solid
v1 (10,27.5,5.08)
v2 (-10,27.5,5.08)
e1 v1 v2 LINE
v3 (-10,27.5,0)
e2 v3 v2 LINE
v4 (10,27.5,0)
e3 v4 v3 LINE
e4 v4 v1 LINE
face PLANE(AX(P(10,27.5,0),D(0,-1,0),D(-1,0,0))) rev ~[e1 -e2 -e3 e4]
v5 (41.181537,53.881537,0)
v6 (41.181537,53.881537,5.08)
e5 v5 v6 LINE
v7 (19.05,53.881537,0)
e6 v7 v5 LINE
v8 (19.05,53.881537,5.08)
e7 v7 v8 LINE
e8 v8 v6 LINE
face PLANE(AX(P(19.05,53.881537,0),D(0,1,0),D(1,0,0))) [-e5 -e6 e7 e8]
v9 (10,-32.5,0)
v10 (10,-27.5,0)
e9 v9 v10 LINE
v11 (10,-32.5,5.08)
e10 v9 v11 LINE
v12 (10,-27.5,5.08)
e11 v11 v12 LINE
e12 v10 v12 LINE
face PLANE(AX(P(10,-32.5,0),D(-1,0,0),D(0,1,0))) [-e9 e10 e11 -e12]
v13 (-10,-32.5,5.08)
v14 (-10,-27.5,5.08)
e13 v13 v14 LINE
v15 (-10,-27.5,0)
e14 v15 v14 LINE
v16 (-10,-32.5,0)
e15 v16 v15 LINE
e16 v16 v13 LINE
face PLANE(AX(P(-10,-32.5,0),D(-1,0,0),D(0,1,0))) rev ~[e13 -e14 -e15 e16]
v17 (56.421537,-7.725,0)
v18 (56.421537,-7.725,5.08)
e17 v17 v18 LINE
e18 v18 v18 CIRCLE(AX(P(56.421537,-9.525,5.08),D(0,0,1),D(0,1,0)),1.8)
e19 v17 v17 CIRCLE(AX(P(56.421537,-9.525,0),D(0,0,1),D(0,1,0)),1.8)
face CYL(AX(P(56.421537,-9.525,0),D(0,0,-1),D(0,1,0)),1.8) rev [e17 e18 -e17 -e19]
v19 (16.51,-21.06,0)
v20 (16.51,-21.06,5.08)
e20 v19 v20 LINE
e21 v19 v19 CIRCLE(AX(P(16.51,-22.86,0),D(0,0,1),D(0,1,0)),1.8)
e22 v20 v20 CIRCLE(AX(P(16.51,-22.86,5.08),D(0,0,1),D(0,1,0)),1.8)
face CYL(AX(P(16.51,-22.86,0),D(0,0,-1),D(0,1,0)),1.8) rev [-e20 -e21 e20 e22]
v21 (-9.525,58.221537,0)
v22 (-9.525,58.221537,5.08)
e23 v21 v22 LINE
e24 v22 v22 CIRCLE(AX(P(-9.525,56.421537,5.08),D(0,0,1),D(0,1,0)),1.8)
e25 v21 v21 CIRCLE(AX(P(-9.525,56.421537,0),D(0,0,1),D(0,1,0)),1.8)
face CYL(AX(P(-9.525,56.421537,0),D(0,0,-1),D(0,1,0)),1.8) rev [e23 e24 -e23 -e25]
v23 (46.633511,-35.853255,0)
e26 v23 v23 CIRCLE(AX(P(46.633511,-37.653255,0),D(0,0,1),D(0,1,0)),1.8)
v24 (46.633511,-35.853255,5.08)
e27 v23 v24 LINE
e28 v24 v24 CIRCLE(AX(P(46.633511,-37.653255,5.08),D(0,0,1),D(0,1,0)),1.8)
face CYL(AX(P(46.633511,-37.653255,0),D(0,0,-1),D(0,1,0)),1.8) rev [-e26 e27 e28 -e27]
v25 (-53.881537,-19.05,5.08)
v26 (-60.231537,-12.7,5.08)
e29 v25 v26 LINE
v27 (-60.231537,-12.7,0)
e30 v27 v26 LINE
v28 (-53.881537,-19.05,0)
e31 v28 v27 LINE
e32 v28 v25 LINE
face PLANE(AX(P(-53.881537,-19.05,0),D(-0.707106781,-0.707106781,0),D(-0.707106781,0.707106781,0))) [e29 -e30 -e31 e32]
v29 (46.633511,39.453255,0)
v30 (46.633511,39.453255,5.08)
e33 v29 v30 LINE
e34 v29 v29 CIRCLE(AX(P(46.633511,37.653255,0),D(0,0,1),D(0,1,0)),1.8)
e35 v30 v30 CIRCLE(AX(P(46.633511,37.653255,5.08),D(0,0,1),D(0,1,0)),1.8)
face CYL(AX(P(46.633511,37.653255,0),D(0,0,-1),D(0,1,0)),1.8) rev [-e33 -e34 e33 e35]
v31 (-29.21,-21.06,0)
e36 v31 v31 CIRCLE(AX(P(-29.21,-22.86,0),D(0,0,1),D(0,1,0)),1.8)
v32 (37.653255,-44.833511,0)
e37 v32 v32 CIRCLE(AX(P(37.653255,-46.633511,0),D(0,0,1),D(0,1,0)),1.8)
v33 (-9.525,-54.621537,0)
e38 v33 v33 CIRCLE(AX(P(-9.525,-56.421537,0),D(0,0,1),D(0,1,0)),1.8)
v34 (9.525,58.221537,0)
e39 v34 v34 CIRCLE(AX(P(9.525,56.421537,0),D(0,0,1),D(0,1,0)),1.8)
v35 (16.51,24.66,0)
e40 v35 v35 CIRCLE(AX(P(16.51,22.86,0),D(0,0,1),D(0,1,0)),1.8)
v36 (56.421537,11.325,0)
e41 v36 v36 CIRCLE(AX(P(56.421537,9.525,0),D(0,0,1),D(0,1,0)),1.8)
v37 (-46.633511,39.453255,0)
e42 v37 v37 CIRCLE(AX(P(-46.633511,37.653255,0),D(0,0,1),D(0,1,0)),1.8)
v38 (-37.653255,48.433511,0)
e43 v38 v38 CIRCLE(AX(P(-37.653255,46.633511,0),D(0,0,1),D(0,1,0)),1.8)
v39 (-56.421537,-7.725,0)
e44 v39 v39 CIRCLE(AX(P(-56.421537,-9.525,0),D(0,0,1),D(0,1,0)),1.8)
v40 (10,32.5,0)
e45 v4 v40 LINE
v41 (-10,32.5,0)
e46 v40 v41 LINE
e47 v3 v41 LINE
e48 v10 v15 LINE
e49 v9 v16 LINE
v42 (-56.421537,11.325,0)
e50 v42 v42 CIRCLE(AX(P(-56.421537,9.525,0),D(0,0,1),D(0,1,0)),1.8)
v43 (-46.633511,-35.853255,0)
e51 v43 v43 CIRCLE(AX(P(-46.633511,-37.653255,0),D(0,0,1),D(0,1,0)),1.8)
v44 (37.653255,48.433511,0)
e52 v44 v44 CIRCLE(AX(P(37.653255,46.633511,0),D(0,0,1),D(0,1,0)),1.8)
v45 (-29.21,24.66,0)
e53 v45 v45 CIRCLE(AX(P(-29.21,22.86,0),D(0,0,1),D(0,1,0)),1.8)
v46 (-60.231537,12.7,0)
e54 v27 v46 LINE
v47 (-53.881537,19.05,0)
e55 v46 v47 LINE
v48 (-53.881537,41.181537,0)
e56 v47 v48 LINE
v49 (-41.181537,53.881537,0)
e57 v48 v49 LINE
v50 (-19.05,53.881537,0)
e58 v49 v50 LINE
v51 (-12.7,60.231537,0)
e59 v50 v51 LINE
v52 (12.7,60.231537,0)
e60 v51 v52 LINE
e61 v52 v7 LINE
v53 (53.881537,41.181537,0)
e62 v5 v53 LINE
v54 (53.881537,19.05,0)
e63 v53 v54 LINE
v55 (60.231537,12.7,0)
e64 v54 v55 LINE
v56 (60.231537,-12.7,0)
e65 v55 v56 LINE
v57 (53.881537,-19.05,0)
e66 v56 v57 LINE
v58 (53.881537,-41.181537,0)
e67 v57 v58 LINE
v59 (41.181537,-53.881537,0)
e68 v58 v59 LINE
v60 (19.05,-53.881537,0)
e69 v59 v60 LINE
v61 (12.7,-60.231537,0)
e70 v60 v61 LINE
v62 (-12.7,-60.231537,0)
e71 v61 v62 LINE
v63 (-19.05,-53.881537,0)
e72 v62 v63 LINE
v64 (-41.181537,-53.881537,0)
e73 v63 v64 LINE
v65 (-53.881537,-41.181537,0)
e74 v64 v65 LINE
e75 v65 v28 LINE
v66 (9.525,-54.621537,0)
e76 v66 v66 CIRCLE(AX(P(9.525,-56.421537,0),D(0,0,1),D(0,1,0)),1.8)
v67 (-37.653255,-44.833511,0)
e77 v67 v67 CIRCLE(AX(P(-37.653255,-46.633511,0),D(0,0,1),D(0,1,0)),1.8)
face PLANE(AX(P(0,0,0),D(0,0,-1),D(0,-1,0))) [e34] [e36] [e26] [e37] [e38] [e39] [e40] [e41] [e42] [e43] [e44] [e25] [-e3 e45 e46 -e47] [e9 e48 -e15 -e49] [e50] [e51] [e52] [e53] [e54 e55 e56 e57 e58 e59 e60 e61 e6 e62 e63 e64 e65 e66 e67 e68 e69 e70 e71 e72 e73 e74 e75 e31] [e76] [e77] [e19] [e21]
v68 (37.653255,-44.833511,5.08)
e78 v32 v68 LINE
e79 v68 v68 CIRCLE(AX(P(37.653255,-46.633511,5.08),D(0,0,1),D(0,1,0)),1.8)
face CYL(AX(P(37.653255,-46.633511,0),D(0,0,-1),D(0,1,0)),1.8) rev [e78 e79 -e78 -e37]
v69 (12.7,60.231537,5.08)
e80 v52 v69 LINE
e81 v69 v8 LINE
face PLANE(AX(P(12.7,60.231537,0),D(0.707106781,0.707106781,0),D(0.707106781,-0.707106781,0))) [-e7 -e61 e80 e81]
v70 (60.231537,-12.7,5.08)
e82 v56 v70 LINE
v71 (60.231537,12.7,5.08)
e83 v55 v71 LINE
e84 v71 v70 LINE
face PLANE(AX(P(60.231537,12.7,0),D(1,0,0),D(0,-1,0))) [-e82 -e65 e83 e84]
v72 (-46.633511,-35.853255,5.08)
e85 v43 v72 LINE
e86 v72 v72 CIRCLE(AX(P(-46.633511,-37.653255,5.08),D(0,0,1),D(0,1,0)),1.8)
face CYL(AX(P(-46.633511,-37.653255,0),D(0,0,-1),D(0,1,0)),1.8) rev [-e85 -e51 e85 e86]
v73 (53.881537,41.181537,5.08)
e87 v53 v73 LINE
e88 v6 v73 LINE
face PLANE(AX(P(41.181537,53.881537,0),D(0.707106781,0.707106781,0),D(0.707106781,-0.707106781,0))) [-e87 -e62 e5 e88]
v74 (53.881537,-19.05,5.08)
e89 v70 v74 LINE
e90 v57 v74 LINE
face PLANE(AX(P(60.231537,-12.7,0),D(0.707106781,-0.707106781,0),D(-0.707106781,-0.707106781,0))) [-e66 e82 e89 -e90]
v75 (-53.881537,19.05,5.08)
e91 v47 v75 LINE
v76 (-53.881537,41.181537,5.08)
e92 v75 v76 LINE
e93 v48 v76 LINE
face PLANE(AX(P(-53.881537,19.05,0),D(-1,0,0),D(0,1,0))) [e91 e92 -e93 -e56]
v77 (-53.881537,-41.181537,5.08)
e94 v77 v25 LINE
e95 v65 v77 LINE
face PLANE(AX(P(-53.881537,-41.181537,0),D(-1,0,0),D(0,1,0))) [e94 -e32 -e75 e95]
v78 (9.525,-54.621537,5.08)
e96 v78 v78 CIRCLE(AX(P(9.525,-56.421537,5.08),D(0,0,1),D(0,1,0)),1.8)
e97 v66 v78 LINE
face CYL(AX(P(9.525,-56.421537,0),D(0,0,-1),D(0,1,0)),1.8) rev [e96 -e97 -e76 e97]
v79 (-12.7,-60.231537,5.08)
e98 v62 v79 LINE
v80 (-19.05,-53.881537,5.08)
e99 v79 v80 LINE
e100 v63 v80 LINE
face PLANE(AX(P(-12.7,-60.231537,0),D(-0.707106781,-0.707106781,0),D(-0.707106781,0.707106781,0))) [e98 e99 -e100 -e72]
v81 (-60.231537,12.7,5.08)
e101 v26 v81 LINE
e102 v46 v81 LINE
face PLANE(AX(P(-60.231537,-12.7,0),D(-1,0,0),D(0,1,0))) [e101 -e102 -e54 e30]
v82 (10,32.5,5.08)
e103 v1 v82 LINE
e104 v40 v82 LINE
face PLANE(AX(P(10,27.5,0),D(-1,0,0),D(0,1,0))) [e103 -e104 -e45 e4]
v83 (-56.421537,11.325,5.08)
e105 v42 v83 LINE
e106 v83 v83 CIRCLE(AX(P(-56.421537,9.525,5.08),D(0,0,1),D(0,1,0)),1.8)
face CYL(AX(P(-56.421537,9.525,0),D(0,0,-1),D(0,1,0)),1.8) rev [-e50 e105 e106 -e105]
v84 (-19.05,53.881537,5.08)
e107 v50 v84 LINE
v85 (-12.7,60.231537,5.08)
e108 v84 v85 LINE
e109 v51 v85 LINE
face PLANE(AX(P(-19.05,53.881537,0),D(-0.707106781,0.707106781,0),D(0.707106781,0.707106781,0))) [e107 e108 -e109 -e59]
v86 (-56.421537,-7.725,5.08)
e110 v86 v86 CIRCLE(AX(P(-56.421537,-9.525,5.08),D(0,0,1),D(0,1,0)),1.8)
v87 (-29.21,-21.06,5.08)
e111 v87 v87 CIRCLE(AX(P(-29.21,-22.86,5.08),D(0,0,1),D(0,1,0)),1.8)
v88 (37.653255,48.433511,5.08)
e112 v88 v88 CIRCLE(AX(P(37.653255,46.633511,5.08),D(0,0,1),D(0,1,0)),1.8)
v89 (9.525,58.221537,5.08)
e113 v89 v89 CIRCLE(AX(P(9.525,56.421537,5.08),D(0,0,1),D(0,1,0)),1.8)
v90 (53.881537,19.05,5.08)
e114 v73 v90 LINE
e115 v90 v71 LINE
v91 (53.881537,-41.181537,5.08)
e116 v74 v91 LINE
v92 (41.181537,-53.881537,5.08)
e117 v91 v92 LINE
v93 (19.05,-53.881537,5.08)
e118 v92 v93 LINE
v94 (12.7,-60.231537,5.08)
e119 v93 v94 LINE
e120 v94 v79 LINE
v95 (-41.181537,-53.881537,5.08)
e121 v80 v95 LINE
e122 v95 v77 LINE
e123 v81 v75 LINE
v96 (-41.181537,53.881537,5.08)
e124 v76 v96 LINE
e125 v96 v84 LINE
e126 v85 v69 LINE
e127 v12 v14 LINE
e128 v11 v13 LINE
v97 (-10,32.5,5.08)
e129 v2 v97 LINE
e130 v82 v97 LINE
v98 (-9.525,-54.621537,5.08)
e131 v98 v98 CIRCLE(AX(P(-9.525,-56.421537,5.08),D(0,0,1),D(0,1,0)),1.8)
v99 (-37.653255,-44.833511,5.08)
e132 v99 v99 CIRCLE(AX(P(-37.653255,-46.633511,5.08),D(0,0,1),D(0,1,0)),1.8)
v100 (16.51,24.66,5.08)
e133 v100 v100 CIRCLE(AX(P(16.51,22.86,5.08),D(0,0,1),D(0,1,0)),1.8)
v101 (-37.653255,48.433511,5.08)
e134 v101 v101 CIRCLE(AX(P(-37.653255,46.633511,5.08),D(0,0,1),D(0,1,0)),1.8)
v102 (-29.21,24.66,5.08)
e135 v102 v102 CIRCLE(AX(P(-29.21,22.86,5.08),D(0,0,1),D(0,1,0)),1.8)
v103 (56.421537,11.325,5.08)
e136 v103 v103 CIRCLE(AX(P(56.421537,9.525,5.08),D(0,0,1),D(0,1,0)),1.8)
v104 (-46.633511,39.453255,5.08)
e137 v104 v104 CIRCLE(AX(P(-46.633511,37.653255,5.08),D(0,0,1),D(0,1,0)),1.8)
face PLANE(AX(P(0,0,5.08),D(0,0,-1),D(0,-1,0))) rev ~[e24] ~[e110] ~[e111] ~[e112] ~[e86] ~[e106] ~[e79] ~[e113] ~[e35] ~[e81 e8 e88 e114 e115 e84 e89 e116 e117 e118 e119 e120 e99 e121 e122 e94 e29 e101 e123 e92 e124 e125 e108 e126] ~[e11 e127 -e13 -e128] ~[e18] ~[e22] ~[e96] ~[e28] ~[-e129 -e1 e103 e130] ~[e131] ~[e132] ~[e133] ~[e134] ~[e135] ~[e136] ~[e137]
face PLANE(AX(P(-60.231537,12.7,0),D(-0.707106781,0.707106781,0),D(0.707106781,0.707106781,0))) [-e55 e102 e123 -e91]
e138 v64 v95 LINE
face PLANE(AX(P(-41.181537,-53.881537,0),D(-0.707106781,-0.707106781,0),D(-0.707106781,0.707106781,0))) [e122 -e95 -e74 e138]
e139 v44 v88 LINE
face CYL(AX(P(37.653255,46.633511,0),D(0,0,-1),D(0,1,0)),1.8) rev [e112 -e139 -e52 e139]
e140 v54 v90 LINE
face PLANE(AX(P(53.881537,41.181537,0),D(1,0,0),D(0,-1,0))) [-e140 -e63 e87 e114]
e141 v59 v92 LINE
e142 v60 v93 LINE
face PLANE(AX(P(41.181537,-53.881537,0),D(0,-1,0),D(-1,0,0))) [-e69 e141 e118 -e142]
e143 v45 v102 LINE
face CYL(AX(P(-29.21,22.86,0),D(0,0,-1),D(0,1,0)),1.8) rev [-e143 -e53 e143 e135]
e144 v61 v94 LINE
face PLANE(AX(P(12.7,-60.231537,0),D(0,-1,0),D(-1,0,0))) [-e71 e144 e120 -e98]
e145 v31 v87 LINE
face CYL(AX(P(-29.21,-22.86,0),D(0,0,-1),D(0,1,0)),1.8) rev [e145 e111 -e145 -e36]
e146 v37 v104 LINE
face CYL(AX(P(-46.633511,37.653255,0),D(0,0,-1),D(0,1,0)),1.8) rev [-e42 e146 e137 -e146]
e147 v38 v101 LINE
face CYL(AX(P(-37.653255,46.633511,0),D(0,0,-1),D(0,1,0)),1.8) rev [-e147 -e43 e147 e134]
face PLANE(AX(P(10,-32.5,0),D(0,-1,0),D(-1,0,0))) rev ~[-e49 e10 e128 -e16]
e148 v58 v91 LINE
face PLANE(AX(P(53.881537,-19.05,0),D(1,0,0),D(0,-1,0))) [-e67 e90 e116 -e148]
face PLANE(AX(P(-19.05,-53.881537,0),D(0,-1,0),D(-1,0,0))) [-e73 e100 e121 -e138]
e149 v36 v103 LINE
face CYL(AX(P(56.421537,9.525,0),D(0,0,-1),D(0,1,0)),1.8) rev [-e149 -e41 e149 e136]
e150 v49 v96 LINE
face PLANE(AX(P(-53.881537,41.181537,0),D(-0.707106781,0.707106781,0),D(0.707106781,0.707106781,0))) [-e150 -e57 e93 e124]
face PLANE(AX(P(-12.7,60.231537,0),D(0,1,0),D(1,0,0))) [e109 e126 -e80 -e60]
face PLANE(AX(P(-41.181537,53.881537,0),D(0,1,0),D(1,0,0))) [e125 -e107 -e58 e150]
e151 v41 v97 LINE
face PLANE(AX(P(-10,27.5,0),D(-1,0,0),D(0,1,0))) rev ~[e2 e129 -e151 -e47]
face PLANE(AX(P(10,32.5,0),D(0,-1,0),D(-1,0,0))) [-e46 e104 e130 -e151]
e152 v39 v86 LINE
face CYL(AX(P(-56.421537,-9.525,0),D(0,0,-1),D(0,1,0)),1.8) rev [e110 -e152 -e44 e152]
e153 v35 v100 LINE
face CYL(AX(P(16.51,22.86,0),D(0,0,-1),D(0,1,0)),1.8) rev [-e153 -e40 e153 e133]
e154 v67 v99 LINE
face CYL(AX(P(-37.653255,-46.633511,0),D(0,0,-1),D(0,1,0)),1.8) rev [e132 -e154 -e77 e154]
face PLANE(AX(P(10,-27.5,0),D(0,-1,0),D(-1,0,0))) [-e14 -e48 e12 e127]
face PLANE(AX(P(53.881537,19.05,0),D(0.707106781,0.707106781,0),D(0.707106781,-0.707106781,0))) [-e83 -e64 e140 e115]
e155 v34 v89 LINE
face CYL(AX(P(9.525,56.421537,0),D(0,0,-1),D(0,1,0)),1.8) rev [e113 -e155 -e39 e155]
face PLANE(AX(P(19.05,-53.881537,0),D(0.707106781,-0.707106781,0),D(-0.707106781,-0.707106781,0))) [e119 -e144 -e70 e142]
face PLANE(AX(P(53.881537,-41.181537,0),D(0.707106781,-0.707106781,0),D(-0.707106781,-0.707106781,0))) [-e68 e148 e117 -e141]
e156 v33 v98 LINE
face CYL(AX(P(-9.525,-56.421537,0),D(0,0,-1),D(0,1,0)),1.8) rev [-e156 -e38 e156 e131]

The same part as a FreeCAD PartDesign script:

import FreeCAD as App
import Part
import Sketcher
from FreeCAD import Vector


def add_polygon(sketch, points):
    """Adds a closed chain of lines whose ends are joined by coincident constraints."""
    first, n = sketch.GeometryCount, len(points)
    for a, b in zip(points, points[1:] + points[:1]):
        sketch.addGeometry(Part.LineSegment(App.Vector(*a, 0), App.Vector(*b, 0)), False)
    for i in range(n):
        sketch.addConstraint(Sketcher.Constraint("Coincident", first + i, 2, first + (i + 1) % n, 1))

doc = App.newDocument("Part")
params = doc.addObject("Spreadsheet::Sheet", "Params")
for row, (alias, value) in enumerate([
    ("sketch1_diameter", "3.6 mm"),
    ("sketch1_width", "20 mm"),
    ("sketch1_height", "5 mm"),
    ("sketch1_width2", "25.4 mm"),
    ("pad1_length", "5.08 mm"),
], start=1):
    params.set(f"A{row}", alias)
    params.set(f"B{row}", "=" + value)
    params.setAlias(f"B{row}", alias)

body = doc.addObject("PartDesign::Body", "Body")

# Sketch on XY plane
sketch1 = body.newObject("Sketcher::SketchObject", "Sketch")
sketch1.AttachmentSupport = (doc.getObject("XY_Plane"), [""])
sketch1.MapMode = "FlatFace"
add_polygon(sketch1, [(-53.9, -19.1), (-53.9, -41.2), (-41.2, -53.9), (-19.1, -53.9), (-12.7, -60.2), (12.7, -60.2), (19.1, -53.9), (41.2, -53.9), (53.9, -41.2), (53.9, -19.1), (60.2, -12.7), (60.2, 12.7), (53.9, 19.1), (53.9, 41.2), (41.2, 53.9), (19.1, 53.9), (12.7, 60.2), (-12.7, 60.2), (-19.1, 53.9), (-41.2, 53.9), (-53.9, 41.2), (-53.9, 19.1), (-60.2, 12.7), (-60.2, -12.7)])  # lines 0-23
sketch1.addGeometry(Part.Circle(Vector(46.6, 37.7, 0), Vector(0, 0, 1), 1.8), False)  # 24
sketch1.addGeometry(Part.Circle(Vector(37.7, 46.6, 0), Vector(0, 0, 1), 1.8), False)  # 25
sketch1.addGeometry(Part.Circle(Vector(56.4, 9.5, 0), Vector(0, 0, 1), 1.8), False)  # 26
sketch1.addGeometry(Part.Circle(Vector(9.5, 56.4, 0), Vector(0, 0, 1), 1.8), False)  # 27
add_polygon(sketch1, [(10, 27.5), (-10, 27.5), (-10, 32.5), (10, 32.5)])  # lines 28-31
sketch1.addGeometry(Part.Circle(Vector(16.5, 22.9, 0), Vector(0, 0, 1), 1.8), False)  # 32
sketch1.addGeometry(Part.Circle(Vector(56.4, -9.5, 0), Vector(0, 0, 1), 1.8), False)  # 33
sketch1.addGeometry(Part.Circle(Vector(46.6, -37.7, 0), Vector(0, 0, 1), 1.8), False)  # 34
sketch1.addGeometry(Part.Circle(Vector(37.7, -46.6, 0), Vector(0, 0, 1), 1.8), False)  # 35
sketch1.addGeometry(Part.Circle(Vector(16.5, -22.9, 0), Vector(0, 0, 1), 1.8), False)  # 36
add_polygon(sketch1, [(10, -32.5), (-10, -32.5), (-10, -27.5), (10, -27.5)])  # lines 37-40
sketch1.addGeometry(Part.Circle(Vector(9.5, -56.4, 0), Vector(0, 0, 1), 1.8), False)  # 41
sketch1.addGeometry(Part.Circle(Vector(-9.5, 56.4, 0), Vector(0, 0, 1), 1.8), False)  # 42
sketch1.addGeometry(Part.Circle(Vector(-37.7, 46.6, 0), Vector(0, 0, 1), 1.8), False)  # 43
sketch1.addGeometry(Part.Circle(Vector(-46.6, 37.7, 0), Vector(0, 0, 1), 1.8), False)  # 44
sketch1.addGeometry(Part.Circle(Vector(-29.2, 22.9, 0), Vector(0, 0, 1), 1.8), False)  # 45
sketch1.addGeometry(Part.Circle(Vector(-56.4, 9.5, 0), Vector(0, 0, 1), 1.8), False)  # 46
sketch1.addGeometry(Part.Circle(Vector(-9.5, -56.4, 0), Vector(0, 0, 1), 1.8), False)  # 47
sketch1.addGeometry(Part.Circle(Vector(-29.2, -22.9, 0), Vector(0, 0, 1), 1.8), False)  # 48
sketch1.addGeometry(Part.Circle(Vector(-56.4, -9.5, 0), Vector(0, 0, 1), 1.8), False)  # 49
sketch1.addGeometry(Part.Circle(Vector(-37.7, -46.6, 0), Vector(0, 0, 1), 1.8), False)  # 50
sketch1.addGeometry(Part.Circle(Vector(-46.6, -37.7, 0), Vector(0, 0, 1), 1.8), False)  # 51
sketch1.addConstraint([
    Sketcher.Constraint("Vertical", 0),
    Sketcher.Constraint("Horizontal", 2),
    Sketcher.Constraint("Horizontal", 4),
    Sketcher.Constraint("Horizontal", 6),
    Sketcher.Constraint("Vertical", 8),
    Sketcher.Constraint("Vertical", 10),
    Sketcher.Constraint("Vertical", 12),
    Sketcher.Constraint("Horizontal", 14),
    Sketcher.Constraint("Horizontal", 16),
    Sketcher.Constraint("Horizontal", 18),
    Sketcher.Constraint("Vertical", 20),
    Sketcher.Constraint("Vertical", 22),
    Sketcher.Constraint("Horizontal", 28),
    Sketcher.Constraint("Vertical", 29),
    Sketcher.Constraint("Horizontal", 30),
    Sketcher.Constraint("Vertical", 31),
    Sketcher.Constraint("Horizontal", 37),
    Sketcher.Constraint("Vertical", 38),
    Sketcher.Constraint("Horizontal", 39),
    Sketcher.Constraint("Vertical", 40),
    Sketcher.Constraint("Equal", 24, 25),
    Sketcher.Constraint("Equal", 25, 26),
    Sketcher.Constraint("Equal", 26, 27),
    Sketcher.Constraint("Equal", 27, 32),
    Sketcher.Constraint("Equal", 32, 33),
    Sketcher.Constraint("Equal", 33, 34),
    Sketcher.Constraint("Equal", 34, 35),
    Sketcher.Constraint("Equal", 35, 36),
    Sketcher.Constraint("Equal", 36, 41),
    Sketcher.Constraint("Equal", 41, 42),
    Sketcher.Constraint("Equal", 42, 43),
    Sketcher.Constraint("Equal", 43, 44),
    Sketcher.Constraint("Equal", 44, 45),
    Sketcher.Constraint("Equal", 45, 46),
    Sketcher.Constraint("Equal", 46, 47),
    Sketcher.Constraint("Equal", 47, 48),
    Sketcher.Constraint("Equal", 48, 49),
    Sketcher.Constraint("Equal", 49, 50),
    Sketcher.Constraint("Equal", 50, 51),
    Sketcher.Constraint("Symmetric", 41, 3, 42, 3, -1, 1),
    Sketcher.Constraint("Symmetric", 35, 3, 43, 3, -1, 1),
    Sketcher.Constraint("Symmetric", 34, 3, 44, 3, -1, 1),
    Sketcher.Constraint("Symmetric", 33, 3, 46, 3, -1, 1),
    Sketcher.Constraint("Symmetric", 27, 3, 47, 3, -1, 1),
    Sketcher.Constraint("Symmetric", 26, 3, 49, 3, -1, 1),
    Sketcher.Constraint("Symmetric", 25, 3, 50, 3, -1, 1),
    Sketcher.Constraint("Symmetric", 24, 3, 51, 3, -1, 1),
    Sketcher.Constraint("Symmetric", 0, 2, 12, 2, -1, 1),
    Sketcher.Constraint("Symmetric", 1, 2, 13, 2, -1, 1),
    Sketcher.Constraint("Symmetric", 3, 2, 15, 2, -1, 1),
    Sketcher.Constraint("Symmetric", 5, 2, 17, 2, -1, 1),
    Sketcher.Constraint("Symmetric", 7, 2, 19, 2, -1, 1),
    Sketcher.Constraint("Symmetric", 9, 2, 21, 2, -1, 1),
    Sketcher.Constraint("Symmetric", 30, 2, 37, 2, -1, 1),
    Sketcher.Constraint("Symmetric", 28, 2, 39, 2, -1, 1),
    Sketcher.Constraint("Symmetric", 27, 3, 42, 3, -2),
    Sketcher.Constraint("Symmetric", 25, 3, 43, 3, -2),
    Sketcher.Constraint("Symmetric", 24, 3, 44, 3, -2),
    Sketcher.Constraint("Symmetric", 26, 3, 46, 3, -2),
    Sketcher.Constraint("Symmetric", 2, 2, 5, 2, -2),
    Sketcher.Constraint("Symmetric", 0, 2, 7, 2, -2),
    Sketcher.Constraint("Symmetric", 32, 3, 36, 3, -1),
    Sketcher.Constraint("Symmetric", 45, 3, 48, 3, -1),
    Sketcher.Constraint("Parallel", 1, 3),
    Sketcher.Constraint("Perpendicular", 3, 5),
    Sketcher.Constraint("Parallel", 5, 7),
    Sketcher.Constraint("Parallel", 7, 9),
    Sketcher.Constraint("Perpendicular", 9, 11),
    Sketcher.Constraint("Parallel", 13, 15),
    Sketcher.Constraint("Perpendicular", 15, 17),
    Sketcher.Constraint("Parallel", 17, 19),
    Sketcher.Constraint("Parallel", 19, 21),
    Sketcher.Constraint("Perpendicular", 21, 23),
    Sketcher.Constraint("Horizontal", 32, 3, 45, 3),
    Sketcher.Constraint("Horizontal", 11, 2, 20, 2),
    Sketcher.Constraint("Horizontal", 10, 2, 21, 2),
    Sketcher.Constraint("Horizontal", 9, 2, 22, 2),
    Sketcher.Constraint("Vertical", 29, 2, 37, 2),
    Sketcher.Constraint("Equal", 18, 0),
    Sketcher.Constraint("Equal", 16, 10),
    Sketcher.Constraint("Equal", 5, 9),
    Sketcher.Constraint("Diameter", 24, 3.6),
    Sketcher.Constraint("DistanceX", 28, 2, 28, 1, 20.0),
    Sketcher.Constraint("DistanceY", 29, 1, 29, 2, 5.0),
    Sketcher.Constraint("DistanceX", 4, 1, 4, 2, 25.4),
    Sketcher.Constraint("DistanceY", -1, 1, 28, 2, 27.5),
    Sketcher.Constraint("DistanceX", 0, 2, 1, 2, 12.7),
    Sketcher.Constraint("DistanceX", -1, 1, 32, 3, 16.51),
    Sketcher.Constraint("DistanceY", -1, 1, 32, 3, 22.86),
    Sketcher.Constraint("DistanceX", 45, 3, -1, 1, 29.21),
    Sketcher.Constraint("DistanceX", 2, 2, -1, 1, 19.05),
    Sketcher.Constraint("DistanceY", 33, 3, 26, 3, 19.05),
    Sketcher.Constraint("DistanceX", 42, 3, 27, 3, 19.05),
    Sketcher.Constraint("DistanceX", 49, 3, 0, 2, 2.54),
    Sketcher.Constraint("DistanceY", 47, 3, 0, 2, 15.24),
    Sketcher.Constraint("DistanceX", 2, 1, 2, 2, 22.131537),
    Sketcher.Constraint("DistanceX", -1, 1, 24, 3, 46.633511),
    Sketcher.Constraint("DistanceY", -1, 1, 25, 3, 46.633511),
    Sketcher.Constraint("DistanceX", 25, 3, 26, 3, 18.768282),
    Sketcher.Constraint("DistanceY", 24, 3, 27, 3, 18.768282),
])
sketch1.setExpression("Constraints[113]", "Params.sketch1_diameter")
sketch1.setExpression("Constraints[114]", "Params.sketch1_width")
sketch1.setExpression("Constraints[115]", "Params.sketch1_height")
sketch1.setExpression("Constraints[116]", "Params.sketch1_width2")
pad1 = body.newObject("PartDesign::Pad", "Pad")
pad1.Profile = sketch1
pad1.setExpression("Length", "Params.pad1_length")

doc.recompute()
